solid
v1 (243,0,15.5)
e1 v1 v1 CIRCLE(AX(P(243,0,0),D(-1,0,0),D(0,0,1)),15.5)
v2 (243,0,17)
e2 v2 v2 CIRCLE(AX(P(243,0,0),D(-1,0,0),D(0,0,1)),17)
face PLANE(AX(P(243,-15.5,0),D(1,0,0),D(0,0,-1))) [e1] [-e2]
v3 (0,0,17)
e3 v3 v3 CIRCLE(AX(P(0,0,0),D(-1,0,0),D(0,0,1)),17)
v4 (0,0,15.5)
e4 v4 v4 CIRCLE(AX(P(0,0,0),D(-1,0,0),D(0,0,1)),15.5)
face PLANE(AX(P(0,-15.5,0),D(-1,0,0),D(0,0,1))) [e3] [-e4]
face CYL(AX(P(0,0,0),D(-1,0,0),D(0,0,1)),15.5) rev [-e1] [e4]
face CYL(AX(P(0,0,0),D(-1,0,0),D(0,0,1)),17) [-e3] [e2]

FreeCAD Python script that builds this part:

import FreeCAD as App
import Part
import Sketcher
Q = App.Units.Quantity


def add_polygon(sketch, points):
    """Adds a closed chain of lines whose ends are joined by coincident constraints."""
    first, n = sketch.GeometryCount, len(points)
    for a, b in zip(points, points[1:] + points[:1]):
        sketch.addGeometry(Part.LineSegment(App.Vector(*a, 0), App.Vector(*b, 0)), False)
    for i in range(n):
        sketch.addConstraint(Sketcher.Constraint("Coincident", first + i, 2, first + (i + 1) % n, 1))

doc = App.newDocument("Part")
body = doc.addObject("PartDesign::Body", "Body")

# Sketch on XY plane
sketch1 = body.newObject("Sketcher::SketchObject", "Sketch")
sketch1.AttachmentSupport = (doc.getObject("XY_Plane"), [""])
sketch1.MapMode = "FlatFace"
add_polygon(sketch1, [(0, -15.5), (0, -17), (243, -17), (243, -15.5)])  # lines 0-3
sketch1.addConstraint([
    Sketcher.Constraint("Vertical", 0),
    Sketcher.Constraint("Horizontal", 1),
    Sketcher.Constraint("Vertical", 2),
    Sketcher.Constraint("Horizontal", 3),
    Sketcher.Constraint("PointOnObject", 0, 2, -2),
    Sketcher.Constraint("DistanceX", 1, 1, 1, 2, Q("243 mm")),
    Sketcher.Constraint("DistanceY", 0, 2, 0, 1, Q("1.5 mm")),
    Sketcher.Constraint("DistanceY", 0, 2, -1, 1, Q("17 mm")),
])
revolution = body.newObject("PartDesign::Revolution", "Revolution")
revolution.Profile = sketch1
revolution.ReferenceAxis = (sketch1, ["H_Axis"])
revolution.Angle = 360

doc.recompute()
